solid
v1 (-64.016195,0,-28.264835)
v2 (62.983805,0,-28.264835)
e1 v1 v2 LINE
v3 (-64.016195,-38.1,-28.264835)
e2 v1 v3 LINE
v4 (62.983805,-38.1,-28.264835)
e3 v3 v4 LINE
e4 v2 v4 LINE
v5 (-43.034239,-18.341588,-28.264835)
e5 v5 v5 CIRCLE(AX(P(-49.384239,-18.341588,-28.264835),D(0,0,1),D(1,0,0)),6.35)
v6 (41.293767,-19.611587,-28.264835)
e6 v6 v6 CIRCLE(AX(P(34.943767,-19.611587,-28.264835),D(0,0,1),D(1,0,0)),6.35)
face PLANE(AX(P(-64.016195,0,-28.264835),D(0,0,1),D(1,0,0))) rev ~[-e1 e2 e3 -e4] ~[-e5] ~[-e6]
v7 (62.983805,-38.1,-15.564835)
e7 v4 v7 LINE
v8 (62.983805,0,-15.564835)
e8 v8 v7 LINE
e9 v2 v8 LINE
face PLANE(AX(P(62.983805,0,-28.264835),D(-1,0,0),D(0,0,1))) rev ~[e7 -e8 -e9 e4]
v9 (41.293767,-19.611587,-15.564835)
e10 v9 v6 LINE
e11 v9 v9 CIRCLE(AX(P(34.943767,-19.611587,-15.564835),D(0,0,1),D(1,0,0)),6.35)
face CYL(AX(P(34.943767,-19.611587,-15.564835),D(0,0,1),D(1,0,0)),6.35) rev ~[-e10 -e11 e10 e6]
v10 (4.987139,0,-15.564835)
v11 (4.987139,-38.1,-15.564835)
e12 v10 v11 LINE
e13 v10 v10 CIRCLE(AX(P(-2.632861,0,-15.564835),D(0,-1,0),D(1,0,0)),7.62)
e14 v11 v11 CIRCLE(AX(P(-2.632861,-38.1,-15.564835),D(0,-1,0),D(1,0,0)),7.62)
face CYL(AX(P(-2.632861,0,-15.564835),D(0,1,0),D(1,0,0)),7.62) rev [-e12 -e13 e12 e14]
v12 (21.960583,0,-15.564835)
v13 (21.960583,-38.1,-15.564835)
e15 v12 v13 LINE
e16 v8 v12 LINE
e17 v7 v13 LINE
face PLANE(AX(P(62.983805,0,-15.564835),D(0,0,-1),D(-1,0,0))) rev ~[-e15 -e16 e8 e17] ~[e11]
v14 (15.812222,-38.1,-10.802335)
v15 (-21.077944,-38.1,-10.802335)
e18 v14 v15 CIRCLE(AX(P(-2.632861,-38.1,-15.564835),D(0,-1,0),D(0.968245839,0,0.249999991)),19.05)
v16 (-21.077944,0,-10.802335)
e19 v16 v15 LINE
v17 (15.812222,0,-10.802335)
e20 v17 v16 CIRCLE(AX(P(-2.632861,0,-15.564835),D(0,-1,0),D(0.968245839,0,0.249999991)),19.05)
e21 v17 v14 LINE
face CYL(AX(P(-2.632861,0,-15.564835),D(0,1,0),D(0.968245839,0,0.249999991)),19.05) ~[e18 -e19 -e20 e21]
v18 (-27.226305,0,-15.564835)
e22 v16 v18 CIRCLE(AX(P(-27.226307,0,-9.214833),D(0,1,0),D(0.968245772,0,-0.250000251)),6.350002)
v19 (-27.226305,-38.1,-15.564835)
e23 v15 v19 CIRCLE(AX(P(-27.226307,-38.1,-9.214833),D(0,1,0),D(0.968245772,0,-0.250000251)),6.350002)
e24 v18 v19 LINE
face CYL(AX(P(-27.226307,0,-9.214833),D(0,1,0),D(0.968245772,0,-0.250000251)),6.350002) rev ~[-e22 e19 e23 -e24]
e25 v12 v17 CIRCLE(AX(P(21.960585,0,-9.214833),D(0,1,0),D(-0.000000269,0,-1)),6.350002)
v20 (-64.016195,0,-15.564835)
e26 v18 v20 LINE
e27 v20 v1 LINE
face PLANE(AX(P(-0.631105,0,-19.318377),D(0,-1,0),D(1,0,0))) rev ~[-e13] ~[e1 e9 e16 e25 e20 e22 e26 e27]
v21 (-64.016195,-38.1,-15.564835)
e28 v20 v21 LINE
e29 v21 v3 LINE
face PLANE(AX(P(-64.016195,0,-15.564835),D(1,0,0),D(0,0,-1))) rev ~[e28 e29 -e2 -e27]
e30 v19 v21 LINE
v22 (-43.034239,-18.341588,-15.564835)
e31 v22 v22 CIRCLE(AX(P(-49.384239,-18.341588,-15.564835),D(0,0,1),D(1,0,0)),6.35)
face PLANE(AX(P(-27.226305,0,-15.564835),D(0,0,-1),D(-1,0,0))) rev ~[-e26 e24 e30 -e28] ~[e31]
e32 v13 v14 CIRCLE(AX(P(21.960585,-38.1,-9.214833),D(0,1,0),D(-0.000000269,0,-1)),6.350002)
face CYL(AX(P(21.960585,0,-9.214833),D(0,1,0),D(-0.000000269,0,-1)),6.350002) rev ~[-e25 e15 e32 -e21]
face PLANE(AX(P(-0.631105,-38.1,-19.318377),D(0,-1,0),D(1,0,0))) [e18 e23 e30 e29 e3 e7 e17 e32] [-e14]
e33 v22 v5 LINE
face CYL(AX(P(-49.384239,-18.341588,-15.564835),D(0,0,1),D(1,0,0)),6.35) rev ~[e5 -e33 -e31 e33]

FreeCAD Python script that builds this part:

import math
import FreeCAD as App
import Part
import Sketcher
from FreeCAD import Vector
Q = App.Units.Quantity

doc = App.newDocument("Part")
body = doc.addObject("PartDesign::Body", "Body")

# Sketch on XZ plane
sketch1 = body.newObject("Sketcher::SketchObject", "Sketch")
sketch1.AttachmentSupport = (doc.getObject("XZ_Plane"), [""])
sketch1.MapMode = "FlatFace"
sketch1.addGeometry([
    Part.LineSegment(Vector(-64, -28, 0), Vector(63, -28, 0)),  # 0
    Part.LineSegment(Vector(63, -28, 0), Vector(63, -16, 0)),  # 1
    Part.LineSegment(Vector(63, -16, 0), Vector(22, -16, 0)),  # 2
    Part.ArcOfCircle(Part.Circle(Vector(22, -9, 0), Vector(0, 0, 1), 6), math.radians(-166), math.radians(-90)),  # 3
    Part.ArcOfCircle(Part.Circle(Vector(-3, -16, 0), Vector(0, 0, 1), 19), math.radians(14), math.radians(166)),  # 4
    Part.ArcOfCircle(Part.Circle(Vector(-27, -9, 0), Vector(0, 0, 1), 6), math.radians(-90), math.radians(-14)),  # 5
    Part.LineSegment(Vector(-27, -16, 0), Vector(-64, -16, 0)),  # 6
    Part.LineSegment(Vector(-64, -16, 0), Vector(-64, -28, 0)),  # 7
    Part.Circle(Vector(-3, -16, 0), Vector(0, 0, 1), 8),  # 8
], False)
sketch1.addConstraint([
    Sketcher.Constraint("Coincident", 0, 2, 1, 1),
    Sketcher.Constraint("Coincident", 1, 2, 2, 1),
    Sketcher.Constraint("Tangent", 2, 2, 3, 2),
    Sketcher.Constraint("Tangent", 3, 1, 4, 1),
    Sketcher.Constraint("Tangent", 4, 2, 5, 2),
    Sketcher.Constraint("Tangent", 5, 1, 6, 1),
    Sketcher.Constraint("Coincident", 6, 2, 7, 1),
    Sketcher.Constraint("Coincident", 7, 2, 0, 1),
    Sketcher.Constraint("Horizontal", 0),
    Sketcher.Constraint("Vertical", 1),
    Sketcher.Constraint("Horizontal", 2),
    Sketcher.Constraint("Horizontal", 6),
    Sketcher.Constraint("Vertical", 7),
    Sketcher.Constraint("Coincident", 8, 3, 4, 3),
    Sketcher.Constraint("Equal", 3, 5),
    Sketcher.Constraint("Horizontal", 3, 3, 5, 3),
    Sketcher.Constraint("Horizontal", 8, 3, 1, 2),
    Sketcher.Constraint("Diameter", 8, Q("0.6 in")),
    Sketcher.Constraint("DistanceX", 0, 1, 0, 2, Q("5 in")),
    Sketcher.Constraint("Radius", 3, Q("0.2500001 in")),
    Sketcher.Constraint("Radius", 4, Q("0.75 in")),
    Sketcher.Constraint("DistanceY", 1, 1, 1, 2, Q("0.5 in")),
    Sketcher.Constraint("DistanceX", 2, 2, 2, 1, Q("41.023222 mm")),
    Sketcher.Constraint("DistanceX", 4, 3, -1, 1, Q("2.632861 mm")),
    Sketcher.Constraint("DistanceY", 3, 3, -1, 1, Q("9.214833 mm")),
])
pad1 = body.newObject("PartDesign::Pad", "Pad")
pad1.Profile = sketch1
pad1.Length = Q("1.5 in")

# Sketch on XY plane
sketch2 = body.newObject("Sketcher::SketchObject", "Sketch001")
sketch2.AttachmentSupport = (doc.getObject("XY_Plane"), [""])
sketch2.MapMode = "FlatFace"
sketch2.AttachmentOffset = App.Placement(Vector(0, 0, -15.564835), App.Rotation())
sketch2.addGeometry([
    Part.Circle(Vector(-49, -18, 0), Vector(0, 0, 1), 6),
    Part.Circle(Vector(35, -20, 0), Vector(0, 0, 1), 6),
], False)
sketch2.addConstraint([
    Sketcher.Constraint("Equal", 0, 1),
    Sketcher.Constraint("Diameter", 0, Q("0.5 in")),
    Sketcher.Constraint("DistanceY", 1, 3, 0, 3, Q("0.05 in")),
    Sketcher.Constraint("DistanceX", 0, 3, -1, 1, Q("49.384239 mm")),
    Sketcher.Constraint("DistanceY", 0, 3, -1, 1, Q("18.341588 mm")),
    Sketcher.Constraint("DistanceX", -1, 1, 1, 3, Q("34.943767 mm")),
])
pocket1 = body.newObject("PartDesign::Pocket", "Pocket")
pocket1.Profile = sketch2
pocket1.Length = Q("1 in")

doc.recompute()
